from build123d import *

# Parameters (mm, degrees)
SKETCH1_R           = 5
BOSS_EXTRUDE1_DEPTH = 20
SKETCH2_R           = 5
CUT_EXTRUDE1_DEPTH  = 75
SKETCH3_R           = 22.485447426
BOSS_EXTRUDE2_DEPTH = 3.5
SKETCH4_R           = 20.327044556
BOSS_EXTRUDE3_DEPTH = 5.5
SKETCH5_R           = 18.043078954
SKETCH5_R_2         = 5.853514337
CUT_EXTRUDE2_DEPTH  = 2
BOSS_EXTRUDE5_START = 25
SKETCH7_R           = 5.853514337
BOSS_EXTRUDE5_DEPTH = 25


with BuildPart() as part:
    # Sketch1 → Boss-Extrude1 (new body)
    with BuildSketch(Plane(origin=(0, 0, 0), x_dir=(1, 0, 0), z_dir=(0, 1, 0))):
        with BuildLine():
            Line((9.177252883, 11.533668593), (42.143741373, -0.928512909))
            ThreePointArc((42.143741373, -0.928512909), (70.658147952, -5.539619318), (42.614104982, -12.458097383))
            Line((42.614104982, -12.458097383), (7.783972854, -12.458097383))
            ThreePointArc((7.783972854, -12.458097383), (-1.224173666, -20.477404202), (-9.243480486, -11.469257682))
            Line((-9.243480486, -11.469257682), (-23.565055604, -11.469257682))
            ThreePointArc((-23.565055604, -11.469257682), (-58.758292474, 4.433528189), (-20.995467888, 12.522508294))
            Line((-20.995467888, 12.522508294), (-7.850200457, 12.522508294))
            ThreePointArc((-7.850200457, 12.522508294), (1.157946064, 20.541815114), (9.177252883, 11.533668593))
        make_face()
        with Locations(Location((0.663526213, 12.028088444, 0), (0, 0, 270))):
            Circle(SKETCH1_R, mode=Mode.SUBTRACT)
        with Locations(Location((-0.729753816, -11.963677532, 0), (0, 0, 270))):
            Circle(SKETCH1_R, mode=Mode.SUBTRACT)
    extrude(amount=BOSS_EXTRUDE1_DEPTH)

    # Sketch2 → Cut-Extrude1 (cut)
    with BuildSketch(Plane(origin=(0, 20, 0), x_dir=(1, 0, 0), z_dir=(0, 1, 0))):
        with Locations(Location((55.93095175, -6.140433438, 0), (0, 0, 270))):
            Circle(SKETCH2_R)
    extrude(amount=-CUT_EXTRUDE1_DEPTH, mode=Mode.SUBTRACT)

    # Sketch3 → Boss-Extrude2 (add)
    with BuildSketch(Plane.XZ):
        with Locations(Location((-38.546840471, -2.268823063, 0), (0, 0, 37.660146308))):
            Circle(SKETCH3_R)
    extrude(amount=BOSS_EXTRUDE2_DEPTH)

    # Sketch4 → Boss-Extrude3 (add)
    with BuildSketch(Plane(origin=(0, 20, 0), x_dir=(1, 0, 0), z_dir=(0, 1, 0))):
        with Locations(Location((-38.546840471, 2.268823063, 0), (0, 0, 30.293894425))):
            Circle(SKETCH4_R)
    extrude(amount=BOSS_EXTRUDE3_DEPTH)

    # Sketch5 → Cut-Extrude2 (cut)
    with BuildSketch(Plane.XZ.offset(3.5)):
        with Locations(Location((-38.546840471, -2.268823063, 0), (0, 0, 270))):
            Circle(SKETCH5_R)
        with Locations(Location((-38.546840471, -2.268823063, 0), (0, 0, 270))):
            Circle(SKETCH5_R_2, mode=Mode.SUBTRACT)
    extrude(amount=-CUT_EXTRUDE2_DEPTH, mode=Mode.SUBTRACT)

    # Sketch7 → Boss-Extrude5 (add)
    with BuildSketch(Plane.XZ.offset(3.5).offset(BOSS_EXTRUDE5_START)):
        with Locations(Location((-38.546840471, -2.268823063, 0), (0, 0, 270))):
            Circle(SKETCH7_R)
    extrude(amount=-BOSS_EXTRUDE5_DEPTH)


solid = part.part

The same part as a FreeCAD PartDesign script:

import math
import FreeCAD as App
import Part
import Sketcher
from FreeCAD import Vector
Q = App.Units.Quantity

doc = App.newDocument("Part")
params = doc.addObject("Spreadsheet::Sheet", "Params")
for row, (alias, value) in enumerate([
    ("sketch1_diameter", "10 mm"),
    ("pad1_length", "20 mm"),
    ("sketch2_diameter", "10 mm"),
    ("pocket1_length", "75 mm"),
    ("pad2_length", "3.5 mm"),
    ("pad3_length", "5.5 mm"),
    ("pocket2_length", "2 mm"),
    ("pad4_length", "25 mm"),
], start=1):
    params.set(f"A{row}", alias)
    params.set(f"B{row}", "=" + value)
    params.setAlias(f"B{row}", alias)

body = doc.addObject("PartDesign::Body", "Body")

sketch1 = doc.addObject("Sketcher::SketchObject", "Sketch")
body.addObject(sketch1)
sketch1.AttachmentSupport = (doc.XZ_Plane, [""])
sketch1.MapMode = "FlatFace"
sketch1.addGeometry([
    Part.LineSegment(Vector(42, 1, 0), Vector(9, -12, 0)),
    Part.ArcOfCircle(Part.Circle(Vector(1, -12, 0), Vector(0, 0, 1), 9), math.radians(-177), math.radians(3)),
    Part.LineSegment(Vector(-8, -13, 0), Vector(-21, -13, 0)),
    Part.ArcOfCircle(Part.Circle(Vector(-39, -2, 0), Vector(0, 0, 1), 20), math.radians(43), math.radians(330)),
    Part.LineSegment(Vector(-24, 11, 0), Vector(-9, 11, 0)),
    Part.ArcOfCircle(Part.Circle(Vector(-1, 12, 0), Vector(0, 0, 1), 9), math.radians(3), math.radians(183)),
    Part.LineSegment(Vector(8, 12, 0), Vector(43, 12, 0)),
    Part.ArcOfCircle(Part.Circle(Vector(56, 6, 0), Vector(0, 0, 1), 15), math.radians(-159), math.radians(155)),
    Part.Circle(Vector(-1, 12, 0), Vector(0, 0, 1), 5),
    Part.Circle(Vector(1, -12, 0), Vector(0, 0, 1), 5),
], False)
sketch1.addConstraint([
    Sketcher.Constraint("Coincident", 0, 2, 1, 2),
    Sketcher.Constraint("Coincident", 1, 1, 2, 1),
    Sketcher.Constraint("Coincident", 2, 2, 3, 2),
    Sketcher.Constraint("Coincident", 3, 1, 4, 1),
    Sketcher.Constraint("Coincident", 4, 2, 5, 2),
    Sketcher.Constraint("Coincident", 5, 1, 6, 1),
    Sketcher.Constraint("Coincident", 6, 2, 7, 2),
    Sketcher.Constraint("Coincident", 7, 1, 0, 1),
    Sketcher.Constraint("Horizontal", 2),
    Sketcher.Constraint("Horizontal", 4),
    Sketcher.Constraint("Horizontal", 6),
    Sketcher.Constraint("Coincident", 8, 3, 5, 3),
    Sketcher.Constraint("Coincident", 9, 3, 1, 3),
    Sketcher.Constraint("Equal", 1, 5),
    Sketcher.Constraint("Equal", 8, 9),
    Sketcher.Constraint("Diameter", 8, Q("10 mm")),
    Sketcher.Constraint("Radius", 1, Q("8.528071 mm")),
    Sketcher.Constraint("Radius", 3, Q("20.327045 mm")),
    Sketcher.Constraint("Radius", 7, Q("14.739447 mm")),
    Sketcher.Constraint("DistanceX", 1, 1, -1, 1, Q("7.8502 mm")),
    Sketcher.Constraint("DistanceY", 3, 3, 5, 3, Q("14.232501 mm")),
    Sketcher.Constraint("DistanceX", 3, 1, 5, 3, Q("22.835302 mm")),
    Sketcher.Constraint("DistanceY", 1, 3, 7, 1, Q("12.956601 mm")),
    Sketcher.Constraint("DistanceX", 2, 2, 2, 1, Q("13.145267 mm")),
    Sketcher.Constraint("DistanceX", 4, 1, 4, 2, Q("14.321575 mm")),
    Sketcher.Constraint("DistanceX", 6, 1, 6, 2, Q("34.830132 mm")),
    Sketcher.Constraint("DistanceY", 1, 3, -1, 1, Q("12.028088 mm")),
    Sketcher.Constraint("DistanceX", 3, 3, -1, 1, Q("38.54684 mm")),
    Sketcher.Constraint("DistanceX", -1, 1, 7, 3, Q("55.930952 mm")),
    Sketcher.Constraint("DistanceY", 0, 2, -1, 1, Q("11.533669 mm")),
    Sketcher.Constraint("DistanceY", 1, 1, -1, 1, Q("12.522508 mm")),
    Sketcher.Constraint("DistanceX", -1, 1, 7, 1, Q("42.143741 mm")),
])
sketch1.setExpression("Constraints[15]", "Params.sketch1_diameter")
pad1 = doc.addObject("PartDesign::Pad", "Pad")
body.addObject(pad1)
pad1.Profile = sketch1
pad1.setExpression("Length", "Params.pad1_length")
pad1.Reversed = True

sketch2 = doc.addObject("Sketcher::SketchObject", "Sketch001")
body.addObject(sketch2)
sketch2.AttachmentSupport = (doc.XZ_Plane, [""])
sketch2.MapMode = "FlatFace"
sketch2.AttachmentOffset = App.Placement(Vector(0, 0, -20), App.Rotation())
sketch2.addGeometry(Part.Circle(Vector(56, 6, 0), Vector(0, 0, 1), 5), False)
sketch2.addConstraint([
    Sketcher.Constraint("Diameter", 0, Q("10 mm")),
    Sketcher.Constraint("DistanceX", -1, 1, 0, 3, Q("55.930952 mm")),
    Sketcher.Constraint("DistanceY", -1, 1, 0, 3, Q("6.140433 mm")),
])
sketch2.setExpression("Constraints[0]", "Params.sketch2_diameter")
pocket1 = doc.addObject("PartDesign::Pocket", "Pocket")
body.addObject(pocket1)
pocket1.Profile = sketch2
pocket1.setExpression("Length", "Params.pocket1_length")
pocket1.Reversed = True

sketch3 = doc.addObject("Sketcher::SketchObject", "Sketch002")
body.addObject(sketch3)
sketch3.AttachmentSupport = (doc.XZ_Plane, [""])
sketch3.MapMode = "FlatFace"
sketch3.addGeometry(Part.Circle(Vector(-39, -2, 0), Vector(0, 0, 1), 22), False)
sketch3.addConstraint([
    Sketcher.Constraint("Diameter", 0, Q("44.970895 mm")),
    Sketcher.Constraint("DistanceX", 0, 3, -1, 1, Q("38.54684 mm")),
    Sketcher.Constraint("DistanceY", 0, 3, -1, 1, Q("2.268823 mm")),
])
pad2 = doc.addObject("PartDesign::Pad", "Pad001")
body.addObject(pad2)
pad2.Profile = sketch3
pad2.setExpression("Length", "Params.pad2_length")

sketch4 = doc.addObject("Sketcher::SketchObject", "Sketch003")
body.addObject(sketch4)
sketch4.AttachmentSupport = (doc.XZ_Plane, [""])
sketch4.MapMode = "FlatFace"
sketch4.AttachmentOffset = App.Placement(Vector(0, 0, -20), App.Rotation())
sketch4.addGeometry(Part.Circle(Vector(-39, -2, 0), Vector(0, 0, 1), 20), False)
sketch4.addConstraint([
    Sketcher.Constraint("Diameter", 0, Q("40.654089 mm")),
    Sketcher.Constraint("DistanceX", 0, 3, -1, 1, Q("38.54684 mm")),
    Sketcher.Constraint("DistanceY", 0, 3, -1, 1, Q("2.268823 mm")),
])
pad3 = doc.addObject("PartDesign::Pad", "Pad002")
body.addObject(pad3)
pad3.Profile = sketch4
pad3.setExpression("Length", "Params.pad3_length")
pad3.Reversed = True

sketch5 = doc.addObject("Sketcher::SketchObject", "Sketch004")
body.addObject(sketch5)
sketch5.AttachmentSupport = (doc.XZ_Plane, [""])
sketch5.MapMode = "FlatFace"
sketch5.AttachmentOffset = App.Placement(Vector(0, 0, 3.5), App.Rotation())
sketch5.addGeometry([
    Part.Circle(Vector(-39, -2, 0), Vector(0, 0, 1), 18),
    Part.Circle(Vector(-39, -2, 0), Vector(0, 0, 1), 6),
], False)
sketch5.addConstraint([
    Sketcher.Constraint("Coincident", 1, 3, 0, 3),
    Sketcher.Constraint("Diameter", 1, Q("11.707029 mm")),
    Sketcher.Constraint("Diameter", 0, Q("36.086158 mm")),
    Sketcher.Constraint("DistanceX", 0, 3, -1, 1, Q("38.54684 mm")),
    Sketcher.Constraint("DistanceY", 0, 3, -1, 1, Q("2.268823 mm")),
])
pocket2 = doc.addObject("PartDesign::Pocket", "Pocket001")
body.addObject(pocket2)
pocket2.Profile = sketch5
pocket2.setExpression("Length", "Params.pocket2_length")

sketch6 = doc.addObject("Sketcher::SketchObject", "Sketch005")
body.addObject(sketch6)
sketch6.AttachmentSupport = (doc.XZ_Plane, [""])
sketch6.MapMode = "FlatFace"
sketch6.AttachmentOffset = App.Placement(Vector(0, 0, 28.5), App.Rotation())
sketch6.addGeometry(Part.Circle(Vector(-39, -2, 0), Vector(0, 0, 1), 6), False)
sketch6.addConstraint([
    Sketcher.Constraint("Diameter", 0, Q("11.707029 mm")),
    Sketcher.Constraint("DistanceX", 0, 3, -1, 1, Q("38.54684 mm")),
    Sketcher.Constraint("DistanceY", 0, 3, -1, 1, Q("2.268823 mm")),
])
pad4 = doc.addObject("PartDesign::Pad", "Pad003")
body.addObject(pad4)
pad4.Profile = sketch6
pad4.setExpression("Length", "Params.pad4_length")
pad4.Reversed = True

doc.recompute()
